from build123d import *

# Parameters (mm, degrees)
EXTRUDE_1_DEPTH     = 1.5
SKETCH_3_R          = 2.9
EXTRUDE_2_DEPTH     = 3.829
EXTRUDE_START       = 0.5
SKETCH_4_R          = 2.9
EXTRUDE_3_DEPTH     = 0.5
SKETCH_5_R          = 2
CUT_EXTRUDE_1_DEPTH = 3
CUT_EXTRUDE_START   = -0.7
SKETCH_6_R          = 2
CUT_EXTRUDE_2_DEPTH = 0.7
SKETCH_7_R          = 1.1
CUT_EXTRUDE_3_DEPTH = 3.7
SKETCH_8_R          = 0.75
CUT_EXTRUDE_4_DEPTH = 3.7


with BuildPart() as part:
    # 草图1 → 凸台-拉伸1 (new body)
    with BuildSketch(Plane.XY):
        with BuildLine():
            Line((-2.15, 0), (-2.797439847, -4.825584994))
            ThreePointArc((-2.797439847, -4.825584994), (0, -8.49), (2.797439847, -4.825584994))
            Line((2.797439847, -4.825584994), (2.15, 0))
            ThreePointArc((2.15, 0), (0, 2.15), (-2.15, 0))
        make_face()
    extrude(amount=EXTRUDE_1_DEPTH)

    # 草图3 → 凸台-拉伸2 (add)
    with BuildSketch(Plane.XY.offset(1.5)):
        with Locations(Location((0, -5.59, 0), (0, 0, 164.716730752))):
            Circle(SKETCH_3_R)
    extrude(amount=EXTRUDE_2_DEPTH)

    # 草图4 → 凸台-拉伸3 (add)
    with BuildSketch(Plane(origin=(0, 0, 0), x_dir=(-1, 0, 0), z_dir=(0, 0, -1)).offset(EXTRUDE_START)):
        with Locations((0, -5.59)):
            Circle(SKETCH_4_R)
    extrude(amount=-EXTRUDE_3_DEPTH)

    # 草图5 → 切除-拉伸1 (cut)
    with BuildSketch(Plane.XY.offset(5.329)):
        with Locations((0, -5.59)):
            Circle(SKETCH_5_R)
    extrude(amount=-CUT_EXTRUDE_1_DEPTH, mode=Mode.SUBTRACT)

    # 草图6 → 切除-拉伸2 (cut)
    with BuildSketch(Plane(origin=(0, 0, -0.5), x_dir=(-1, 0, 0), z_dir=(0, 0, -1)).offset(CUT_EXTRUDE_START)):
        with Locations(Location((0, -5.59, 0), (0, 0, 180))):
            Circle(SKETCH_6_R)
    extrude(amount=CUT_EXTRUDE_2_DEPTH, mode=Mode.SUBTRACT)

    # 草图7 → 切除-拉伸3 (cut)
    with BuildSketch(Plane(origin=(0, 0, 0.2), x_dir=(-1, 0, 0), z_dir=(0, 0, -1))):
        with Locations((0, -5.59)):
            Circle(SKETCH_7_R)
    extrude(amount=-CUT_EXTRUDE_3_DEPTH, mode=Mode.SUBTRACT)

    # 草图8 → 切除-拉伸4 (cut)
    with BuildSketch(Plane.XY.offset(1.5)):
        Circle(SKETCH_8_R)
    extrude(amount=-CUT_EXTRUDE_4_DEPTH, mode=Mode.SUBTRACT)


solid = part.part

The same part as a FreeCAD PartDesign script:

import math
import FreeCAD as App
import Part
import Sketcher

doc = App.newDocument("Part")
body = doc.addObject("PartDesign::Body", "Body")

# Sketch on XY plane
sketch1 = body.newObject("Sketcher::SketchObject", "Sketch")
sketch1.AttachmentSupport = (doc.getObject("XY_Plane"), [""])
sketch1.MapMode = "FlatFace"
sketch1.addGeometry([
    Part.LineSegment(App.Vector(-2.1, 0, 0), App.Vector(-2.8, -4.8, 0)),
    Part.ArcOfCircle(Part.Circle(App.Vector(0, -5.6, 0), App.Vector(0, 0, 1), 2.9), math.radians(165), math.radians(375)),
    Part.LineSegment(App.Vector(2.8, -4.8, 0), App.Vector(2.1, 0, 0)),
    Part.ArcOfCircle(Part.Circle(App.Vector(0, 0, 0), App.Vector(0, 0, 1), 2.1), math.radians(0), math.radians(180)),
], False)
sketch1.addConstraint([
    Sketcher.Constraint("Coincident", 0, 2, 1, 1),
    Sketcher.Constraint("Coincident", 1, 2, 2, 1),
    Sketcher.Constraint("Coincident", 2, 2, 3, 1),
    Sketcher.Constraint("Coincident", 3, 2, 0, 1),
    Sketcher.Constraint("Coincident", 3, 3, -1, 1),
    Sketcher.Constraint("Symmetric", 0, 2, 1, 2, -2),
    Sketcher.Constraint("PointOnObject", 2, 2, -1),
    Sketcher.Constraint("PointOnObject", 3, 2, -1),
    Sketcher.Constraint("Radius", 1, 2.9),
    Sketcher.Constraint("Radius", 3, 2.15),
    Sketcher.Constraint("DistanceY", 1, 3, -1, 1, 5.59),
    Sketcher.Constraint("DistanceX", 0, 2, -1, 1, 2.79744),
])
pad1 = body.newObject("PartDesign::Pad", "Pad")
pad1.Profile = sketch1
pad1.Length = 1.5

# Sketch on XY plane
sketch2 = body.newObject("Sketcher::SketchObject", "Sketch001")
sketch2.AttachmentSupport = (doc.getObject("XY_Plane"), [""])
sketch2.MapMode = "FlatFace"
sketch2.AttachmentOffset = App.Placement(App.Vector(0, 0, 1.5), App.Rotation())
sketch2.addGeometry(Part.Circle(App.Vector(0, -5.6, 0), App.Vector(0, 0, 1), 2.9), False)
sketch2.addConstraint([
    Sketcher.Constraint("PointOnObject", 0, 3, -2),
    Sketcher.Constraint("Diameter", 0, 5.8),
    Sketcher.Constraint("DistanceY", 0, 3, -1, 1, 5.59),
])
pad2 = body.newObject("PartDesign::Pad", "Pad001")
pad2.Profile = sketch2
pad2.Length = 3.829

# Sketch on XY plane
sketch3 = body.newObject("Sketcher::SketchObject", "Sketch002")
sketch3.AttachmentSupport = (doc.getObject("XY_Plane"), [""])
sketch3.MapMode = "FlatFace"
sketch3.AttachmentOffset = App.Placement(App.Vector(0, 0, -0.5), App.Rotation())
sketch3.addGeometry(Part.Circle(App.Vector(0, -5.6, 0), App.Vector(0, 0, 1), 2.9), False)
sketch3.addConstraint([
    Sketcher.Constraint("PointOnObject", 0, 3, -2),
    Sketcher.Constraint("Diameter", 0, 5.8),
    Sketcher.Constraint("DistanceY", 0, 3, -1, 1, 5.59),
])
pad3 = body.newObject("PartDesign::Pad", "Pad002")
pad3.Profile = sketch3
pad3.Length = 0.5

# Sketch on XY plane
sketch4 = body.newObject("Sketcher::SketchObject", "Sketch003")
sketch4.AttachmentSupport = (doc.getObject("XY_Plane"), [""])
sketch4.MapMode = "FlatFace"
sketch4.AttachmentOffset = App.Placement(App.Vector(0, 0, 5.329), App.Rotation())
sketch4.addGeometry(Part.Circle(App.Vector(0, -5.6, 0), App.Vector(0, 0, 1), 2), False)
sketch4.addConstraint([
    Sketcher.Constraint("PointOnObject", 0, 3, -2),
    Sketcher.Constraint("Diameter", 0, 4.0),
    Sketcher.Constraint("DistanceY", 0, 3, -1, 1, 5.59),
])
pocket1 = body.newObject("PartDesign::Pocket", "Pocket")
pocket1.Profile = sketch4
pocket1.Length = 3

# Sketch on XY plane
sketch5 = body.newObject("Sketcher::SketchObject", "Sketch004")
sketch5.AttachmentSupport = (doc.getObject("XY_Plane"), [""])
sketch5.MapMode = "FlatFace"
sketch5.AttachmentOffset = App.Placement(App.Vector(0, 0, 0.2), App.Rotation())
sketch5.addGeometry(Part.Circle(App.Vector(0, -5.6, 0), App.Vector(0, 0, 1), 2), False)
sketch5.addConstraint([
    Sketcher.Constraint("PointOnObject", 0, 3, -2),
    Sketcher.Constraint("Diameter", 0, 4.0),
    Sketcher.Constraint("DistanceY", 0, 3, -1, 1, 5.59),
])
pocket2 = body.newObject("PartDesign::Pocket", "Pocket001")
pocket2.Profile = sketch5
pocket2.Length = 0.7

# Sketch on XY plane
sketch6 = body.newObject("Sketcher::SketchObject", "Sketch005")
sketch6.AttachmentSupport = (doc.getObject("XY_Plane"), [""])
sketch6.MapMode = "FlatFace"
sketch6.AttachmentOffset = App.Placement(App.Vector(0, 0, 0.2), App.Rotation())
sketch6.addGeometry(Part.Circle(App.Vector(0, -5.6, 0), App.Vector(0, 0, 1), 1.1), False)
sketch6.addConstraint([
    Sketcher.Constraint("PointOnObject", 0, 3, -2),
    Sketcher.Constraint("Diameter", 0, 2.2),
    Sketcher.Constraint("DistanceY", 0, 3, -1, 1, 5.59),
])
pocket3 = body.newObject("PartDesign::Pocket", "Pocket002")
pocket3.Profile = sketch6
pocket3.Length = 3.7
pocket3.Reversed = True

# Sketch on XY plane
sketch7 = body.newObject("Sketcher::SketchObject", "Sketch006")
sketch7.AttachmentSupport = (doc.getObject("XY_Plane"), [""])
sketch7.MapMode = "FlatFace"
sketch7.AttachmentOffset = App.Placement(App.Vector(0, 0, 1.5), App.Rotation())
sketch7.addGeometry(Part.Circle(App.Vector(0, 0, 0), App.Vector(0, 0, 1), 0.8), False)
sketch7.addConstraint([
    Sketcher.Constraint("Coincident", 0, 3, -1, 1),
    Sketcher.Constraint("Diameter", 0, 1.5),
])
pocket4 = body.newObject("PartDesign::Pocket", "Pocket003")
pocket4.Profile = sketch7
pocket4.Length = 3.7

doc.recompute()
